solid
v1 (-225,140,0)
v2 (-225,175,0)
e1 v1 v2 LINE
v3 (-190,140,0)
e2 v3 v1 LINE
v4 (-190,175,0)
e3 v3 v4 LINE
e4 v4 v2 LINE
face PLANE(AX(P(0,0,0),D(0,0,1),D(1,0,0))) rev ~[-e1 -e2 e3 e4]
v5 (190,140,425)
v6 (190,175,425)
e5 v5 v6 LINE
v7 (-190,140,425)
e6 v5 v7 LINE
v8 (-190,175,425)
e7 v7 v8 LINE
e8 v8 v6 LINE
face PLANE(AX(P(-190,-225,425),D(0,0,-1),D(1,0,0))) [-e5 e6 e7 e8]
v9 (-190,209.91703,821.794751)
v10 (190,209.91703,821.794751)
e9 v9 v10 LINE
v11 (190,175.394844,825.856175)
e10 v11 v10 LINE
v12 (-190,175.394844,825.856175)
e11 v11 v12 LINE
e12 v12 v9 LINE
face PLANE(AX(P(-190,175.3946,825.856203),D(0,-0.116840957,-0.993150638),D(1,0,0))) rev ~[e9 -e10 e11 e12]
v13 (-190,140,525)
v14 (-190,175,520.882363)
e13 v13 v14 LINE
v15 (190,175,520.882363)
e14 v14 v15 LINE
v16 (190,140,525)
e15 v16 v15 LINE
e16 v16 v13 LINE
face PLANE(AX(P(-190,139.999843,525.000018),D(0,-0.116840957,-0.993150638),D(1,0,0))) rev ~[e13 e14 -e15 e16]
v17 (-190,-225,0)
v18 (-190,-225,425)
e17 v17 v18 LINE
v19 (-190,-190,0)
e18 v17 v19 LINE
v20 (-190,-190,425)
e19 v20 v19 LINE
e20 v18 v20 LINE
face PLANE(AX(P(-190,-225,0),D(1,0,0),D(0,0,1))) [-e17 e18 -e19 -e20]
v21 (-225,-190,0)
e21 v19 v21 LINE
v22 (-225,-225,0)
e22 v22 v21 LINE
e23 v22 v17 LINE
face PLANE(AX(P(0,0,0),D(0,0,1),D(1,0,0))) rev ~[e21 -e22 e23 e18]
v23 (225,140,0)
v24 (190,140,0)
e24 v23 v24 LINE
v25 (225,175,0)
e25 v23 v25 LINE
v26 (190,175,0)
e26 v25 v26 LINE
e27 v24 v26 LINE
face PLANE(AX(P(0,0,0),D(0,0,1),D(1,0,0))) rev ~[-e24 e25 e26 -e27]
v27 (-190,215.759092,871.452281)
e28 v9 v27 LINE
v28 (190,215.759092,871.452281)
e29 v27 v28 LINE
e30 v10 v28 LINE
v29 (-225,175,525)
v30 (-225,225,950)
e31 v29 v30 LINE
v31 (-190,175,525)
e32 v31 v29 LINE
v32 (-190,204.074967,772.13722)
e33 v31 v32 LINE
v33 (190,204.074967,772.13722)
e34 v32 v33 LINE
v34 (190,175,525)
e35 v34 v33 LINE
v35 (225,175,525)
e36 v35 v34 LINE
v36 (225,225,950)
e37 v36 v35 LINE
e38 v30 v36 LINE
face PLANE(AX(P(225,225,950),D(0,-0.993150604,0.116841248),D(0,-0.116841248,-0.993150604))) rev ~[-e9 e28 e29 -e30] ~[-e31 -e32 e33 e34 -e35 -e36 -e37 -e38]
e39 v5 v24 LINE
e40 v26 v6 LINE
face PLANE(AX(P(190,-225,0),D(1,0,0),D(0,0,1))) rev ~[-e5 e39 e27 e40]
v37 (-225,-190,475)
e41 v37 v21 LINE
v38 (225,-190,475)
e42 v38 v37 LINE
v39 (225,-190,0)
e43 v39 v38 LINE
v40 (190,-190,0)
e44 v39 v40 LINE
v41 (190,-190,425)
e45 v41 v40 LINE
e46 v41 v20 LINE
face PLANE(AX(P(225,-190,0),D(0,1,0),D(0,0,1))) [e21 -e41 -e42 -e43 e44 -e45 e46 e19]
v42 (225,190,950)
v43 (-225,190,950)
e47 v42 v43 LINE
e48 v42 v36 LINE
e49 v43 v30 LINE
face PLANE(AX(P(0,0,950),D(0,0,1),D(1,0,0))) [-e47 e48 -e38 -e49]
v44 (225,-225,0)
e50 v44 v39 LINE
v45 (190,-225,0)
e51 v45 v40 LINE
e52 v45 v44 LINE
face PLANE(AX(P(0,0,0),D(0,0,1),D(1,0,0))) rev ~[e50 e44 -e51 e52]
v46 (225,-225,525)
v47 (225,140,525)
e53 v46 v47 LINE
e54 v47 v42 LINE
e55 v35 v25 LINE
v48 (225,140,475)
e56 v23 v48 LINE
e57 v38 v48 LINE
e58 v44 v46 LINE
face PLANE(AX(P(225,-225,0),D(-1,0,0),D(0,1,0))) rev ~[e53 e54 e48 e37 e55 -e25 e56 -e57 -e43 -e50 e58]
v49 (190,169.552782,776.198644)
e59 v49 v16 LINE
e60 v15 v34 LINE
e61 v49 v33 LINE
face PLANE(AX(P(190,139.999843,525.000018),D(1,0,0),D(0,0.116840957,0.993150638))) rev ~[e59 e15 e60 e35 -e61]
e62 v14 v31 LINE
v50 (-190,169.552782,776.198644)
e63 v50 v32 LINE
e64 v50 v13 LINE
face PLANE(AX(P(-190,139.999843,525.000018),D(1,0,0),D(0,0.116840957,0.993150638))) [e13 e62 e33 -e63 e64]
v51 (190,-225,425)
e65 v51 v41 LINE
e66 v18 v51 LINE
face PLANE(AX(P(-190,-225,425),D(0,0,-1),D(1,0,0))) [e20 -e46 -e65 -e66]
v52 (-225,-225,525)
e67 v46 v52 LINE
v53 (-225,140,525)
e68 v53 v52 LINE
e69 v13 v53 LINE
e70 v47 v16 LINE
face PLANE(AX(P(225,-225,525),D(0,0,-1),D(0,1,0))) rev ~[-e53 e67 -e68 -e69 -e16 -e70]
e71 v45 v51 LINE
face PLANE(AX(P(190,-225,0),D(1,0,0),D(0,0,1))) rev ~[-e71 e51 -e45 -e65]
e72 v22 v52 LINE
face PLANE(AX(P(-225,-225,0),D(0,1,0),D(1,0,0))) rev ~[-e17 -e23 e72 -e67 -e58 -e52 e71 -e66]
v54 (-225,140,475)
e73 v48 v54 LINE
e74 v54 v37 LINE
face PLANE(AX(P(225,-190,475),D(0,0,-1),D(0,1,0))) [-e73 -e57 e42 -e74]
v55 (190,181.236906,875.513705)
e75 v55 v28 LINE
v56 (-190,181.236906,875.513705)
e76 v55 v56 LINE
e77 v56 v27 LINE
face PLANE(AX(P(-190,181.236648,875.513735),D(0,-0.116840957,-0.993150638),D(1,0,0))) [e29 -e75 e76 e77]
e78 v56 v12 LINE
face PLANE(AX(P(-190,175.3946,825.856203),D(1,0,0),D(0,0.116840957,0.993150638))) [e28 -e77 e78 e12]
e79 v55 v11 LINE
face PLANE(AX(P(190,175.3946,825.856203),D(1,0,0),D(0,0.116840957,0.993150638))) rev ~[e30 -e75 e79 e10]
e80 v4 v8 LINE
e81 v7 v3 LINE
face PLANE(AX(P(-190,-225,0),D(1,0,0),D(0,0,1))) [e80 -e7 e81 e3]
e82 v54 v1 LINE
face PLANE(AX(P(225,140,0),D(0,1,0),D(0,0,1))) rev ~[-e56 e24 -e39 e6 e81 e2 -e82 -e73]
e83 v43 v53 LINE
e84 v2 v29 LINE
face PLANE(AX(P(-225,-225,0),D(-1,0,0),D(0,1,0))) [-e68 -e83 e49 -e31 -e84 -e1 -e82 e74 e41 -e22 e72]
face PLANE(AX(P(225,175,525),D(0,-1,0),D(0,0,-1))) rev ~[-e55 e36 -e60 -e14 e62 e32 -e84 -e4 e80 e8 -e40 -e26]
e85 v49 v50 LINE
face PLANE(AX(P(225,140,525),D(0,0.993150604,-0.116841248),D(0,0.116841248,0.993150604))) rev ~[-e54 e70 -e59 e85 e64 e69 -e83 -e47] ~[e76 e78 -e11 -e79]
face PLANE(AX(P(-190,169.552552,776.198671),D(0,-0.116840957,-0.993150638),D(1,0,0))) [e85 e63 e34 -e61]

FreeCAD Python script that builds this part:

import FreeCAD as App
import Part
import Sketcher

V = App.Vector


def add_polygon(sketch, points):
    """Adds a closed chain of lines whose ends are joined by coincident constraints."""
    first, n = sketch.GeometryCount, len(points)
    for a, b in zip(points, points[1:] + points[:1]):
        sketch.addGeometry(Part.LineSegment(App.Vector(*a, 0), App.Vector(*b, 0)), False)
    for i in range(n):
        sketch.addConstraint(Sketcher.Constraint("Coincident", first + i, 2, first + (i + 1) % n, 1))

doc = App.newDocument("Part")
body = doc.addObject("PartDesign::Body", "Body")

# Sketch on XY plane
sketch1 = body.newObject("Sketcher::SketchObject", "Sketch")
sketch1.AttachmentSupport = (doc.getObject("XY_Plane"), [""])
sketch1.MapMode = "FlatFace"
add_polygon(sketch1, [(-225, 225), (-225, -225), (225, -225), (225, 225)])  # lines 0-3
sketch1.addConstraint([
    Sketcher.Constraint("Vertical", 0),
    Sketcher.Constraint("Horizontal", 1),
    Sketcher.Constraint("Vertical", 2),
    Sketcher.Constraint("Horizontal", 3),
    Sketcher.Constraint("Symmetric", 0, 2, 2, 2, -1, 1),
    Sketcher.Constraint("Equal", 3, 0),
    Sketcher.Constraint("DistanceX", 1, 1, 1, 2, 450.0),
])
pad1 = body.newObject("PartDesign::Pad", "Pad")
pad1.Profile = sketch1
pad1.Length = 950

# Sketch on YZ plane
sketch2 = body.newObject("Sketcher::SketchObject", "Sketch001")
sketch2.AttachmentSupport = (doc.getObject("YZ_Plane"), [""])
sketch2.MapMode = "FlatFace"
sketch2.AttachmentOffset = App.Placement(V(0, 0, 225), App.Rotation())
add_polygon(sketch2, [(-190, 475), (-190, 0), (140, 0), (140, 475)])  # lines 0-3
add_polygon(sketch2, [(-225, 525), (140, 525), (190, 950), (-225, 950)])  # lines 4-7
add_polygon(sketch2, [(175, 0), (225, 0), (225, 950), (175, 525)])  # lines 8-11
sketch2.addConstraint([
    Sketcher.Constraint("Vertical", 0),
    Sketcher.Constraint("Horizontal", 1),
    Sketcher.Constraint("Vertical", 2),
    Sketcher.Constraint("Horizontal", 3),
    Sketcher.Constraint("Horizontal", 4),
    Sketcher.Constraint("Horizontal", 6),
    Sketcher.Constraint("Vertical", 7),
    Sketcher.Constraint("Horizontal", 8),
    Sketcher.Constraint("Vertical", 9),
    Sketcher.Constraint("Vertical", 11),
    Sketcher.Constraint("Symmetric", 6, 2, 9, 2, -2),
    Sketcher.Constraint("PointOnObject", 0, 2, -1),
    Sketcher.Constraint("PointOnObject", 8, 2, -1),
    Sketcher.Constraint("Parallel", 5, 10),
    Sketcher.Constraint("Horizontal", 7, 2, 10, 2),
    Sketcher.Constraint("Vertical", 2, 2, 4, 2),
    Sketcher.Constraint("DistanceX", 1, 1, 1, 2, 330.0),
    Sketcher.Constraint("DistanceX", 4, 1, 4, 2, 365.0),
    Sketcher.Constraint("DistanceX", 6, 2, 6, 1, 415.0),
    Sketcher.Constraint("DistanceY", 0, 2, 0, 1, 475.0),
    Sketcher.Constraint("DistanceY", 7, 2, 7, 1, 425.0),
    Sketcher.Constraint("DistanceY", 9, 1, 9, 2, 950.0),
    Sketcher.Constraint("DistanceX", 0, 2, -1, 1, 190.0),
])
pocket1 = body.newObject("PartDesign::Pocket", "Pocket")
pocket1.Profile = sketch2
pocket1.Type = "ThroughAll"

# Sketch on XZ plane
sketch3 = body.newObject("Sketcher::SketchObject", "Sketch002")
sketch3.AttachmentSupport = (doc.getObject("XZ_Plane"), [""])
sketch3.MapMode = "FlatFace"
sketch3.AttachmentOffset = App.Placement(V(0, 0, 225), App.Rotation())
add_polygon(sketch3, [(-190, 425), (-190, 0), (190, 0), (190, 425)])  # lines 0-3
sketch3.addConstraint([
    Sketcher.Constraint("Vertical", 0),
    Sketcher.Constraint("Horizontal", 1),
    Sketcher.Constraint("Vertical", 2),
    Sketcher.Constraint("Horizontal", 3),
    Sketcher.Constraint("Symmetric", 0, 2, 1, 2, -1, 1),
    Sketcher.Constraint("DistanceX", 1, 1, 1, 2, 380.0),
    Sketcher.Constraint("DistanceY", 0, 2, 0, 1, 425.0),
])
pocket2 = body.newObject("PartDesign::Pocket", "Pocket001")
pocket2.Profile = sketch3
pocket2.Type = "ThroughAll"

# Sketch on an angled plane
sketch4 = body.newObject("Sketcher::SketchObject", "Sketch003")
sketch4.Placement = App.Placement(V(0, 77.167235, -9.078498), App.Rotation(V(1, 0, 0), V(0, 0.116840957, 0.993150638), V(0, -0.993150638, 0.116840957), "ZXY"))
add_polygon(sketch4, [(-190, 891), (-190, 841), (190, 841), (190, 891)])  # lines 0-3
add_polygon(sketch4, [(-190, 791), (-190, 538), (190, 538), (190, 791)])  # lines 4-7
sketch4.addConstraint([
    Sketcher.Constraint("Vertical", 0),
    Sketcher.Constraint("Horizontal", 1),
    Sketcher.Constraint("Vertical", 2),
    Sketcher.Constraint("Horizontal", 3),
    Sketcher.Constraint("Vertical", 4),
    Sketcher.Constraint("Horizontal", 5),
    Sketcher.Constraint("Vertical", 6),
    Sketcher.Constraint("Horizontal", 7),
    Sketcher.Constraint("Vertical", 3, 2, 4, 2),
    Sketcher.Constraint("Vertical", 2, 2, 5, 2),
    Sketcher.Constraint("DistanceX", 1, 1, 1, 2, 380.0),
    Sketcher.Constraint("DistanceY", 0, 2, 0, 1, 50.0),
    Sketcher.Constraint("DistanceX", 0, 2, -1, 1, 190.0),
    Sketcher.Constraint("DistanceY", 6, 2, 1, 2, 50.0),
    Sketcher.Constraint("DistanceY", 4, 2, 4, 1, 252.931069),
    Sketcher.Constraint("DistanceY", -1, 1, 0, 2, 840.69291),
])
pocket3 = body.newObject("PartDesign::Pocket", "Pocket002")
pocket3.Profile = sketch4
pocket3.Type = "ThroughAll"

doc.recompute()
